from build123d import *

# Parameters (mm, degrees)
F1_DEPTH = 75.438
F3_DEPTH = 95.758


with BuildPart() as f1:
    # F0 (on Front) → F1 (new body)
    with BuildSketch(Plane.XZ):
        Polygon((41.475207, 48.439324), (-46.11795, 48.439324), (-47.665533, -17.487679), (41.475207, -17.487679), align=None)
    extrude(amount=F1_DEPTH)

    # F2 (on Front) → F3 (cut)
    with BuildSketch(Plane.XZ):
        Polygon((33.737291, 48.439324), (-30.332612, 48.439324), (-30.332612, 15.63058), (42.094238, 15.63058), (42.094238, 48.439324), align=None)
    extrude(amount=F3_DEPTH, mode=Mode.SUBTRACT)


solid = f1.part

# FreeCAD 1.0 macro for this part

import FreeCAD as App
import Part
import Sketcher
Q = App.Units.Quantity


def add_polygon(sketch, points):
    """Adds a closed chain of lines whose ends are joined by coincident constraints."""
    first, n = sketch.GeometryCount, len(points)
    for a, b in zip(points, points[1:] + points[:1]):
        sketch.addGeometry(Part.LineSegment(App.Vector(*a, 0), App.Vector(*b, 0)), False)
    for i in range(n):
        sketch.addConstraint(Sketcher.Constraint("Coincident", first + i, 2, first + (i + 1) % n, 1))

doc = App.newDocument("Part")
body = doc.addObject("PartDesign::Body", "Body")

# Sketch on XZ plane
sketch1 = body.newObject("Sketcher::SketchObject", "Sketch")
sketch1.AttachmentSupport = (doc.getObject("XZ_Plane"), [""])
sketch1.MapMode = "FlatFace"
add_polygon(sketch1, [(41, 48), (-46, 48), (-48, -17), (41, -17)])  # lines 0-3
sketch1.addConstraint(Sketcher.Constraint("Horizontal", 0))
sketch1.addConstraint(Sketcher.Constraint("Horizontal", 2))
sketch1.addConstraint(Sketcher.Constraint("Vertical", 3))
sketch1.addConstraint(Sketcher.Constraint("DistanceX", 2, 1, 2, 2, Q("89.14074 mm")))
sketch1.addConstraint(Sketcher.Constraint("DistanceX", 0, 2, 0, 1, Q("87.593157 mm")))
sketch1.addConstraint(Sketcher.Constraint("DistanceY", 3, 1, 3, 2, Q("65.927003 mm")))
sketch1.addConstraint(Sketcher.Constraint("DistanceX", 0, 2, -1, 1, Q("46.11795 mm")))
sketch1.addConstraint(Sketcher.Constraint("DistanceY", 1, 2, -1, 1, Q("17.487679 mm")))
pad1 = body.newObject("PartDesign::Pad", "Pad")
pad1.Profile = sketch1
pad1.Length = Q("2.97 in")

# Sketch on XZ plane
sketch2 = body.newObject("Sketcher::SketchObject", "Sketch001")
sketch2.AttachmentSupport = (doc.getObject("XZ_Plane"), [""])
sketch2.MapMode = "FlatFace"
add_polygon(sketch2, [(-30, 48), (-30, 16), (42, 16), (42, 48)])  # lines 0-3
sketch2.addConstraint(Sketcher.Constraint("Vertical", 0))
sketch2.addConstraint(Sketcher.Constraint("Horizontal", 1))
sketch2.addConstraint(Sketcher.Constraint("Vertical", 2))
sketch2.addConstraint(Sketcher.Constraint("Horizontal", 3))
sketch2.addConstraint(Sketcher.Constraint("DistanceX", 1, 1, 1, 2, Q("72.42685 mm")))
sketch2.addConstraint(Sketcher.Constraint("DistanceY", 0, 2, 0, 1, Q("32.808744 mm")))
sketch2.addConstraint(Sketcher.Constraint("DistanceY", -1, 1, 0, 2, Q("15.63058 mm")))
sketch2.addConstraint(Sketcher.Constraint("DistanceX", 0, 2, -1, 1, Q("30.332612 mm")))
pocket1 = body.newObject("PartDesign::Pocket", "Pocket")
pocket1.Profile = sketch2
pocket1.Length = Q("3.77 in")
pocket1.Reversed = True

doc.recompute()
